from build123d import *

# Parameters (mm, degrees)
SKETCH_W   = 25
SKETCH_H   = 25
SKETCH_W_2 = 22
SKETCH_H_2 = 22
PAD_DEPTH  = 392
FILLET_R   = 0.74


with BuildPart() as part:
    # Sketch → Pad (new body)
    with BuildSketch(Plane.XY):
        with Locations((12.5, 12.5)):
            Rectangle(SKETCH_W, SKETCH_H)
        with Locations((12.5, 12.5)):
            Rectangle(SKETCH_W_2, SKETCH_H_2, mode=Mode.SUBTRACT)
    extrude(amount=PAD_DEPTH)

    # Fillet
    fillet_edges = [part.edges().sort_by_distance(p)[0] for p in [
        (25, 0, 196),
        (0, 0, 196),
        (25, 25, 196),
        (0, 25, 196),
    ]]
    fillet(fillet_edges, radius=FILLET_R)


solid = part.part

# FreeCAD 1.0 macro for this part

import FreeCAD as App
import Part
import Sketcher


def edges_at(feature, points):
    """Names of the edges that pass closest to the given points."""
    edges = feature.Shape.Edges
    near = lambda p: min(range(len(edges)), key=lambda i: edges[i].distToShape(Part.Vertex(*p))[0])
    return sorted({f"Edge{near(p) + 1}" for p in points})


def add_polygon(sketch, points):
    """Adds a closed chain of lines whose ends are joined by coincident constraints."""
    first, n = sketch.GeometryCount, len(points)
    for a, b in zip(points, points[1:] + points[:1]):
        sketch.addGeometry(Part.LineSegment(App.Vector(*a, 0), App.Vector(*b, 0)), False)
    for i in range(n):
        sketch.addConstraint(Sketcher.Constraint("Coincident", first + i, 2, first + (i + 1) % n, 1))

doc = App.newDocument("Part")
body = doc.addObject("PartDesign::Body", "Body")

# Sketch on XY plane
sketch1 = body.newObject("Sketcher::SketchObject", "Sketch")
sketch1.AttachmentSupport = (doc.getObject("XY_Plane"), [""])
sketch1.MapMode = "FlatFace"
add_polygon(sketch1, [(0, 25), (0, 0), (25, 0), (25, 25)])  # lines 0-3
add_polygon(sketch1, [(24, 2), (2, 2), (2, 24), (24, 24)])  # lines 4-7
sketch1.addConstraint(Sketcher.Constraint("Vertical", 0))
sketch1.addConstraint(Sketcher.Constraint("Horizontal", 1))
sketch1.addConstraint(Sketcher.Constraint("Vertical", 2))
sketch1.addConstraint(Sketcher.Constraint("Horizontal", 3))
sketch1.addConstraint(Sketcher.Constraint("Horizontal", 4))
sketch1.addConstraint(Sketcher.Constraint("Vertical", 5))
sketch1.addConstraint(Sketcher.Constraint("Horizontal", 6))
sketch1.addConstraint(Sketcher.Constraint("Vertical", 7))
sketch1.addConstraint(Sketcher.Constraint("Coincident", 0, 2, -1, 1))
sketch1.addConstraint(Sketcher.Constraint("Equal", 3, 0))
sketch1.addConstraint(Sketcher.Constraint("Equal", 6, 5))
sketch1.addConstraint(Sketcher.Constraint("DistanceX", 1, 1, 1, 2, 25.0))
sketch1.addConstraint(Sketcher.Constraint("DistanceX", 4, 2, 4, 1, 22.0))
sketch1.addConstraint(Sketcher.Constraint("DistanceX", -1, 1, 4, 2, 1.5))
sketch1.addConstraint(Sketcher.Constraint("DistanceY", -1, 1, 4, 2, 1.5))
pad1 = body.newObject("PartDesign::Pad", "Pad")
pad1.Profile = sketch1
pad1.Length = 392
doc.recompute()

fillet = body.newObject("PartDesign::Fillet", "Fillet")
fillet.Base = (pad1, edges_at(pad1, [
    (25, 0, 196),
    (0, 0, 196),
    (25, 25, 196),
    (0, 25, 196),
]))
fillet.Radius = 0.74

doc.recompute()
